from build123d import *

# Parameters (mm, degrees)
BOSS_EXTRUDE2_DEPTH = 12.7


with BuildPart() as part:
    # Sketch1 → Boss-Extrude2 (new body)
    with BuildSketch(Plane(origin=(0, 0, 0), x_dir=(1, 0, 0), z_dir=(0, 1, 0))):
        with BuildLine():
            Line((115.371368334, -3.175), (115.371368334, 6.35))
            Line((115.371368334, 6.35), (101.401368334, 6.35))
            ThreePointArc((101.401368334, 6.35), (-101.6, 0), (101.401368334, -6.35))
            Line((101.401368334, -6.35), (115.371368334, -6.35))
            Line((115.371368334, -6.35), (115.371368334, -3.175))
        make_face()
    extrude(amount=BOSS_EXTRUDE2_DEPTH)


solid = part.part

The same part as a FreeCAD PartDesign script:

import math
import FreeCAD as App
import Part
import Sketcher
Q = App.Units.Quantity

doc = App.newDocument("Part")
body = doc.addObject("PartDesign::Body", "Body")

# Sketch on XZ plane
sketch1 = doc.addObject("Sketcher::SketchObject", "Sketch")
body.addObject(sketch1)
sketch1.AttachmentSupport = (doc.XZ_Plane, [""])
sketch1.MapMode = "FlatFace"
sketch1.addGeometry([
    Part.LineSegment(App.Vector(115, -6, 0), App.Vector(101, -6, 0)),
    Part.ArcOfCircle(Part.Circle(App.Vector(0, 0, 0), App.Vector(0, 0, 1), 102), math.radians(4), math.radians(356)),
    Part.LineSegment(App.Vector(101, 6, 0), App.Vector(115, 6, 0)),
    Part.LineSegment(App.Vector(115, 6, 0), App.Vector(115, -6, 0)),
], False)
sketch1.addConstraint([
    Sketcher.Constraint("Coincident", 0, 2, 1, 2),
    Sketcher.Constraint("Coincident", 1, 1, 2, 1),
    Sketcher.Constraint("Coincident", 2, 2, 3, 1),
    Sketcher.Constraint("Coincident", 3, 2, 0, 1),
    Sketcher.Constraint("Horizontal", 0),
    Sketcher.Constraint("Horizontal", 2),
    Sketcher.Constraint("Vertical", 3),
    Sketcher.Constraint("Coincident", 1, 3, -1, 1),
    Sketcher.Constraint("Vertical", 0, 2, 1, 1),
    Sketcher.Constraint("Radius", 1, Q("4 in")),
    Sketcher.Constraint("DistanceY", 3, 2, 3, 1, Q("0.5 in")),
    Sketcher.Constraint("DistanceX", 0, 2, 0, 1, Q("0.55 in")),
])
pad1 = doc.addObject("PartDesign::Pad", "Pad")
body.addObject(pad1)
pad1.Profile = sketch1
pad1.Length = Q("0.5 in")
pad1.Reversed = True

doc.recompute()
